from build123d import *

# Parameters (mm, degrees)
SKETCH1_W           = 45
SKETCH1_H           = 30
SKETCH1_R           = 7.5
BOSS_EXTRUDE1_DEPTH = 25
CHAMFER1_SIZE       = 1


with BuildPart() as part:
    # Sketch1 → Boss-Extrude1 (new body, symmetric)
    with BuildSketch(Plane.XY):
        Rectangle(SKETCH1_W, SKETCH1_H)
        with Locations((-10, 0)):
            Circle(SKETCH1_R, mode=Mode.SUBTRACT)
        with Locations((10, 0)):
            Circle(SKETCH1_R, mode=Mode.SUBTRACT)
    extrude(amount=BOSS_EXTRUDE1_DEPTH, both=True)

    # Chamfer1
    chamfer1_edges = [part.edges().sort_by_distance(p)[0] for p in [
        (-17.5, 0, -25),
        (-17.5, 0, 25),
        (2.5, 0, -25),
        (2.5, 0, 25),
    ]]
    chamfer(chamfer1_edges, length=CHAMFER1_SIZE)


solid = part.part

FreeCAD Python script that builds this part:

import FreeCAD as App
import Part
import Sketcher
Q = App.Units.Quantity


def edges_at(feature, points):
    """Names of the edges that pass closest to the given points."""
    edges = feature.Shape.Edges
    near = lambda p: min(range(len(edges)), key=lambda i: edges[i].distToShape(Part.Vertex(*p))[0])
    return sorted({f"Edge{near(p) + 1}" for p in points})

doc = App.newDocument("Part")
body = doc.addObject("PartDesign::Body", "Body")

sketch1 = body.newObject("Sketcher::SketchObject", "Sketch")
sketch1.AttachmentSupport = (doc.getObject("XY_Plane"), [""])
sketch1.MapMode = "FlatFace"
sketch1.addGeometry([
    Part.LineSegment(App.Vector(-22.5, 15, 0), App.Vector(-22.5, -15, 0)),
    Part.LineSegment(App.Vector(-22.5, -15, 0), App.Vector(22.5, -15, 0)),
    Part.LineSegment(App.Vector(22.5, -15, 0), App.Vector(22.5, 15, 0)),
    Part.LineSegment(App.Vector(22.5, 15, 0), App.Vector(-22.5, 15, 0)),
    Part.Circle(App.Vector(-10, 0, 0), App.Vector(0, 0, 1), 7.5),
    Part.Circle(App.Vector(10, 0, 0), App.Vector(0, 0, 1), 7.5),
], False)
sketch1.addConstraint([
    Sketcher.Constraint("Coincident", 0, 2, 1, 1),
    Sketcher.Constraint("Coincident", 1, 2, 2, 1),
    Sketcher.Constraint("Coincident", 2, 2, 3, 1),
    Sketcher.Constraint("Coincident", 3, 2, 0, 1),
    Sketcher.Constraint("Vertical", 0),
    Sketcher.Constraint("Horizontal", 1),
    Sketcher.Constraint("Vertical", 2),
    Sketcher.Constraint("Horizontal", 3),
    Sketcher.Constraint("Equal", 4, 5),
    Sketcher.Constraint("Symmetric", 4, 3, 5, 3, -1, 1),
    Sketcher.Constraint("Symmetric", 0, 2, 2, 2, -1, 1),
    Sketcher.Constraint("PointOnObject", 4, 3, -1),
    Sketcher.Constraint("Diameter", 4, Q("15 mm")),
    Sketcher.Constraint("DistanceX", 1, 1, 1, 2, Q("45 mm")),
    Sketcher.Constraint("DistanceY", 0, 2, 0, 1, Q("30 mm")),
    Sketcher.Constraint("DistanceX", 4, 3, -1, 1, Q("10 mm")),
])
pad1 = body.newObject("PartDesign::Pad", "Pad")
pad1.Profile = sketch1
pad1.Length = 50
pad1.Midplane = True
doc.recompute()

chamfer = body.newObject("PartDesign::Chamfer", "Chamfer")
chamfer.Base = (pad1, edges_at(pad1, [
    (-17.5, 0, -25),
    (-17.5, 0, 25),
    (2.5, 0, -25),
    (2.5, 0, 25),
]))
chamfer.Size = 1

doc.recompute()
